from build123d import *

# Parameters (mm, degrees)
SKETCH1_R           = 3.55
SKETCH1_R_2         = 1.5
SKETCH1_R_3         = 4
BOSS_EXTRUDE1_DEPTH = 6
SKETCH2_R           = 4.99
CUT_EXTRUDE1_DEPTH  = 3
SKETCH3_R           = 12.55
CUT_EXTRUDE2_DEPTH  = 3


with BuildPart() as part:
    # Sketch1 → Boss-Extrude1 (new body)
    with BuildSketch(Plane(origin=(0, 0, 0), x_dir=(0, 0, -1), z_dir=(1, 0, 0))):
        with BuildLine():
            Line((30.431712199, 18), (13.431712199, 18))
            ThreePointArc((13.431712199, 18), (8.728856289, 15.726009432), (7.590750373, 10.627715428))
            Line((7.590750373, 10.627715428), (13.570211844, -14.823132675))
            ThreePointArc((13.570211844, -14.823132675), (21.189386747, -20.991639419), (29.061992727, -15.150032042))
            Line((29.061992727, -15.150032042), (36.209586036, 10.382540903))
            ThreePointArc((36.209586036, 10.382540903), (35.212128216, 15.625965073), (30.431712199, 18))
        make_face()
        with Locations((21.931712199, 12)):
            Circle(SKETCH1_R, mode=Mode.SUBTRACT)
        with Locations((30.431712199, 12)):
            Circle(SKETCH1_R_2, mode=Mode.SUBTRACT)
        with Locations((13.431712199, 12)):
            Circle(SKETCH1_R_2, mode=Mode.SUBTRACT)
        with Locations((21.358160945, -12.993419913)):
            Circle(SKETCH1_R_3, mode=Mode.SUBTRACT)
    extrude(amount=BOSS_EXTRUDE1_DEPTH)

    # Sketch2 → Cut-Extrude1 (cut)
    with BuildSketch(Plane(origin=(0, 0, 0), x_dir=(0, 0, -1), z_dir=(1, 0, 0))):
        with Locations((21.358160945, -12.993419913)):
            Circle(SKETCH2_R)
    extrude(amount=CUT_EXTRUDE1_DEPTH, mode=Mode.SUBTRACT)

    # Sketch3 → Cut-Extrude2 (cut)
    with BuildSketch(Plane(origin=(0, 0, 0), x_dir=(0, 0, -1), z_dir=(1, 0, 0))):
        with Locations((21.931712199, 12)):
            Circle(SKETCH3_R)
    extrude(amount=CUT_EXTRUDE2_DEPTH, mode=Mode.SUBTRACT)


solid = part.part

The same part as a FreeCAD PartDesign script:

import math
import FreeCAD as App
import Part
import Sketcher

doc = App.newDocument("Part")
body = doc.addObject("PartDesign::Body", "Body")

# Sketch on YZ plane
sketch1 = body.newObject("Sketcher::SketchObject", "Sketch")
sketch1.AttachmentSupport = (doc.getObject("YZ_Plane"), [""])
sketch1.MapMode = "FlatFace"
sketch1.addGeometry([
    Part.LineSegment(App.Vector(18, -30.4, 0), App.Vector(18, -13.4, 0)),  # 0
    Part.ArcOfCircle(Part.Circle(App.Vector(12, -13.4, 0), App.Vector(0, 0, 1), 6), math.radians(0), math.radians(103)),  # 1
    Part.LineSegment(App.Vector(10.6, -7.6, 0), App.Vector(-14.8, -13.6, 0)),  # 2
    Part.ArcOfCircle(Part.Circle(App.Vector(-13, -21.4, 0), App.Vector(0, 0, 1), 8), math.radians(103), math.radians(254)),  # 3
    Part.LineSegment(App.Vector(-15.2, -29.1, 0), App.Vector(10.4, -36.2, 0)),  # 4
    Part.ArcOfCircle(Part.Circle(App.Vector(12, -30.4, 0), App.Vector(0, 0, 1), 6), math.radians(-106), math.radians(0)),  # 5
    Part.Circle(App.Vector(-13, -21.4, 0), App.Vector(0, 0, 1), 4),  # 6
    Part.Circle(App.Vector(12, -13.4, 0), App.Vector(0, 0, 1), 1.5),  # 7
    Part.Circle(App.Vector(12, -21.9, 0), App.Vector(0, 0, 1), 3.5),  # 8
    Part.Circle(App.Vector(12, -30.4, 0), App.Vector(0, 0, 1), 1.5),  # 9
], False)
sketch1.addConstraint([
    Sketcher.Constraint("Tangent", 0, 2, 1, 1),
    Sketcher.Constraint("Tangent", 1, 2, 2, 1),
    Sketcher.Constraint("Tangent", 2, 2, 3, 1),
    Sketcher.Constraint("Tangent", 3, 2, 4, 1),
    Sketcher.Constraint("Tangent", 4, 2, 5, 1),
    Sketcher.Constraint("Tangent", 5, 2, 0, 1),
    Sketcher.Constraint("Vertical", 0),
    Sketcher.Constraint("Coincident", 6, 3, 3, 3),
    Sketcher.Constraint("Coincident", 7, 3, 1, 3),
    Sketcher.Constraint("Coincident", 9, 3, 5, 3),
    Sketcher.Constraint("Equal", 1, 5),
    Sketcher.Constraint("Equal", 7, 9),
    Sketcher.Constraint("Vertical", 7, 3, 8, 3),
    Sketcher.Constraint("Diameter", 6, 8.0),
    Sketcher.Constraint("Diameter", 7, 3.0),
    Sketcher.Constraint("Radius", 1, 6.0),
    Sketcher.Constraint("Radius", 3, 8.0),
    Sketcher.Constraint("Diameter", 8, 7.1),
    Sketcher.Constraint("DistanceY", 0, 1, 0, 2, 17.0),
    Sketcher.Constraint("DistanceX", -1, 1, 1, 3, 12.0),
    Sketcher.Constraint("DistanceY", 8, 3, 1, 3, 8.5),
    Sketcher.Constraint("DistanceY", 2, 2, 1, 3, 0.1385),
    Sketcher.Constraint("DistanceX", 3, 3, -1, 1, 12.99342),
    Sketcher.Constraint("DistanceY", 3, 3, -1, 1, 21.358161),
])
pad1 = body.newObject("PartDesign::Pad", "Pad")
pad1.Profile = sketch1
pad1.Length = 6

# Sketch on YZ plane
sketch2 = body.newObject("Sketcher::SketchObject", "Sketch001")
sketch2.AttachmentSupport = (doc.getObject("YZ_Plane"), [""])
sketch2.MapMode = "FlatFace"
sketch2.addGeometry(Part.Circle(App.Vector(-13, -21.4, 0), App.Vector(0, 0, 1), 5), False)
sketch2.addConstraint([
    Sketcher.Constraint("Diameter", 0, 9.98),
    Sketcher.Constraint("DistanceX", 0, 3, -1, 1, 12.99342),
    Sketcher.Constraint("DistanceY", 0, 3, -1, 1, 21.358161),
])
pocket1 = body.newObject("PartDesign::Pocket", "Pocket")
pocket1.Profile = sketch2
pocket1.Length = 3
pocket1.Reversed = True

# Sketch on YZ plane
sketch3 = body.newObject("Sketcher::SketchObject", "Sketch002")
sketch3.AttachmentSupport = (doc.getObject("YZ_Plane"), [""])
sketch3.MapMode = "FlatFace"
sketch3.addGeometry(Part.Circle(App.Vector(12, -22, 0), App.Vector(0, 0, 1), 13), False)
sketch3.addConstraint([
    Sketcher.Constraint("Diameter", 0, 25.1),
    Sketcher.Constraint("DistanceX", -1, 1, 0, 3, 12.0),
    Sketcher.Constraint("DistanceY", 0, 3, -1, 1, 21.931712),
])
pocket2 = body.newObject("PartDesign::Pocket", "Pocket001")
pocket2.Profile = sketch3
pocket2.Length = 3
pocket2.Reversed = True

doc.recompute()
